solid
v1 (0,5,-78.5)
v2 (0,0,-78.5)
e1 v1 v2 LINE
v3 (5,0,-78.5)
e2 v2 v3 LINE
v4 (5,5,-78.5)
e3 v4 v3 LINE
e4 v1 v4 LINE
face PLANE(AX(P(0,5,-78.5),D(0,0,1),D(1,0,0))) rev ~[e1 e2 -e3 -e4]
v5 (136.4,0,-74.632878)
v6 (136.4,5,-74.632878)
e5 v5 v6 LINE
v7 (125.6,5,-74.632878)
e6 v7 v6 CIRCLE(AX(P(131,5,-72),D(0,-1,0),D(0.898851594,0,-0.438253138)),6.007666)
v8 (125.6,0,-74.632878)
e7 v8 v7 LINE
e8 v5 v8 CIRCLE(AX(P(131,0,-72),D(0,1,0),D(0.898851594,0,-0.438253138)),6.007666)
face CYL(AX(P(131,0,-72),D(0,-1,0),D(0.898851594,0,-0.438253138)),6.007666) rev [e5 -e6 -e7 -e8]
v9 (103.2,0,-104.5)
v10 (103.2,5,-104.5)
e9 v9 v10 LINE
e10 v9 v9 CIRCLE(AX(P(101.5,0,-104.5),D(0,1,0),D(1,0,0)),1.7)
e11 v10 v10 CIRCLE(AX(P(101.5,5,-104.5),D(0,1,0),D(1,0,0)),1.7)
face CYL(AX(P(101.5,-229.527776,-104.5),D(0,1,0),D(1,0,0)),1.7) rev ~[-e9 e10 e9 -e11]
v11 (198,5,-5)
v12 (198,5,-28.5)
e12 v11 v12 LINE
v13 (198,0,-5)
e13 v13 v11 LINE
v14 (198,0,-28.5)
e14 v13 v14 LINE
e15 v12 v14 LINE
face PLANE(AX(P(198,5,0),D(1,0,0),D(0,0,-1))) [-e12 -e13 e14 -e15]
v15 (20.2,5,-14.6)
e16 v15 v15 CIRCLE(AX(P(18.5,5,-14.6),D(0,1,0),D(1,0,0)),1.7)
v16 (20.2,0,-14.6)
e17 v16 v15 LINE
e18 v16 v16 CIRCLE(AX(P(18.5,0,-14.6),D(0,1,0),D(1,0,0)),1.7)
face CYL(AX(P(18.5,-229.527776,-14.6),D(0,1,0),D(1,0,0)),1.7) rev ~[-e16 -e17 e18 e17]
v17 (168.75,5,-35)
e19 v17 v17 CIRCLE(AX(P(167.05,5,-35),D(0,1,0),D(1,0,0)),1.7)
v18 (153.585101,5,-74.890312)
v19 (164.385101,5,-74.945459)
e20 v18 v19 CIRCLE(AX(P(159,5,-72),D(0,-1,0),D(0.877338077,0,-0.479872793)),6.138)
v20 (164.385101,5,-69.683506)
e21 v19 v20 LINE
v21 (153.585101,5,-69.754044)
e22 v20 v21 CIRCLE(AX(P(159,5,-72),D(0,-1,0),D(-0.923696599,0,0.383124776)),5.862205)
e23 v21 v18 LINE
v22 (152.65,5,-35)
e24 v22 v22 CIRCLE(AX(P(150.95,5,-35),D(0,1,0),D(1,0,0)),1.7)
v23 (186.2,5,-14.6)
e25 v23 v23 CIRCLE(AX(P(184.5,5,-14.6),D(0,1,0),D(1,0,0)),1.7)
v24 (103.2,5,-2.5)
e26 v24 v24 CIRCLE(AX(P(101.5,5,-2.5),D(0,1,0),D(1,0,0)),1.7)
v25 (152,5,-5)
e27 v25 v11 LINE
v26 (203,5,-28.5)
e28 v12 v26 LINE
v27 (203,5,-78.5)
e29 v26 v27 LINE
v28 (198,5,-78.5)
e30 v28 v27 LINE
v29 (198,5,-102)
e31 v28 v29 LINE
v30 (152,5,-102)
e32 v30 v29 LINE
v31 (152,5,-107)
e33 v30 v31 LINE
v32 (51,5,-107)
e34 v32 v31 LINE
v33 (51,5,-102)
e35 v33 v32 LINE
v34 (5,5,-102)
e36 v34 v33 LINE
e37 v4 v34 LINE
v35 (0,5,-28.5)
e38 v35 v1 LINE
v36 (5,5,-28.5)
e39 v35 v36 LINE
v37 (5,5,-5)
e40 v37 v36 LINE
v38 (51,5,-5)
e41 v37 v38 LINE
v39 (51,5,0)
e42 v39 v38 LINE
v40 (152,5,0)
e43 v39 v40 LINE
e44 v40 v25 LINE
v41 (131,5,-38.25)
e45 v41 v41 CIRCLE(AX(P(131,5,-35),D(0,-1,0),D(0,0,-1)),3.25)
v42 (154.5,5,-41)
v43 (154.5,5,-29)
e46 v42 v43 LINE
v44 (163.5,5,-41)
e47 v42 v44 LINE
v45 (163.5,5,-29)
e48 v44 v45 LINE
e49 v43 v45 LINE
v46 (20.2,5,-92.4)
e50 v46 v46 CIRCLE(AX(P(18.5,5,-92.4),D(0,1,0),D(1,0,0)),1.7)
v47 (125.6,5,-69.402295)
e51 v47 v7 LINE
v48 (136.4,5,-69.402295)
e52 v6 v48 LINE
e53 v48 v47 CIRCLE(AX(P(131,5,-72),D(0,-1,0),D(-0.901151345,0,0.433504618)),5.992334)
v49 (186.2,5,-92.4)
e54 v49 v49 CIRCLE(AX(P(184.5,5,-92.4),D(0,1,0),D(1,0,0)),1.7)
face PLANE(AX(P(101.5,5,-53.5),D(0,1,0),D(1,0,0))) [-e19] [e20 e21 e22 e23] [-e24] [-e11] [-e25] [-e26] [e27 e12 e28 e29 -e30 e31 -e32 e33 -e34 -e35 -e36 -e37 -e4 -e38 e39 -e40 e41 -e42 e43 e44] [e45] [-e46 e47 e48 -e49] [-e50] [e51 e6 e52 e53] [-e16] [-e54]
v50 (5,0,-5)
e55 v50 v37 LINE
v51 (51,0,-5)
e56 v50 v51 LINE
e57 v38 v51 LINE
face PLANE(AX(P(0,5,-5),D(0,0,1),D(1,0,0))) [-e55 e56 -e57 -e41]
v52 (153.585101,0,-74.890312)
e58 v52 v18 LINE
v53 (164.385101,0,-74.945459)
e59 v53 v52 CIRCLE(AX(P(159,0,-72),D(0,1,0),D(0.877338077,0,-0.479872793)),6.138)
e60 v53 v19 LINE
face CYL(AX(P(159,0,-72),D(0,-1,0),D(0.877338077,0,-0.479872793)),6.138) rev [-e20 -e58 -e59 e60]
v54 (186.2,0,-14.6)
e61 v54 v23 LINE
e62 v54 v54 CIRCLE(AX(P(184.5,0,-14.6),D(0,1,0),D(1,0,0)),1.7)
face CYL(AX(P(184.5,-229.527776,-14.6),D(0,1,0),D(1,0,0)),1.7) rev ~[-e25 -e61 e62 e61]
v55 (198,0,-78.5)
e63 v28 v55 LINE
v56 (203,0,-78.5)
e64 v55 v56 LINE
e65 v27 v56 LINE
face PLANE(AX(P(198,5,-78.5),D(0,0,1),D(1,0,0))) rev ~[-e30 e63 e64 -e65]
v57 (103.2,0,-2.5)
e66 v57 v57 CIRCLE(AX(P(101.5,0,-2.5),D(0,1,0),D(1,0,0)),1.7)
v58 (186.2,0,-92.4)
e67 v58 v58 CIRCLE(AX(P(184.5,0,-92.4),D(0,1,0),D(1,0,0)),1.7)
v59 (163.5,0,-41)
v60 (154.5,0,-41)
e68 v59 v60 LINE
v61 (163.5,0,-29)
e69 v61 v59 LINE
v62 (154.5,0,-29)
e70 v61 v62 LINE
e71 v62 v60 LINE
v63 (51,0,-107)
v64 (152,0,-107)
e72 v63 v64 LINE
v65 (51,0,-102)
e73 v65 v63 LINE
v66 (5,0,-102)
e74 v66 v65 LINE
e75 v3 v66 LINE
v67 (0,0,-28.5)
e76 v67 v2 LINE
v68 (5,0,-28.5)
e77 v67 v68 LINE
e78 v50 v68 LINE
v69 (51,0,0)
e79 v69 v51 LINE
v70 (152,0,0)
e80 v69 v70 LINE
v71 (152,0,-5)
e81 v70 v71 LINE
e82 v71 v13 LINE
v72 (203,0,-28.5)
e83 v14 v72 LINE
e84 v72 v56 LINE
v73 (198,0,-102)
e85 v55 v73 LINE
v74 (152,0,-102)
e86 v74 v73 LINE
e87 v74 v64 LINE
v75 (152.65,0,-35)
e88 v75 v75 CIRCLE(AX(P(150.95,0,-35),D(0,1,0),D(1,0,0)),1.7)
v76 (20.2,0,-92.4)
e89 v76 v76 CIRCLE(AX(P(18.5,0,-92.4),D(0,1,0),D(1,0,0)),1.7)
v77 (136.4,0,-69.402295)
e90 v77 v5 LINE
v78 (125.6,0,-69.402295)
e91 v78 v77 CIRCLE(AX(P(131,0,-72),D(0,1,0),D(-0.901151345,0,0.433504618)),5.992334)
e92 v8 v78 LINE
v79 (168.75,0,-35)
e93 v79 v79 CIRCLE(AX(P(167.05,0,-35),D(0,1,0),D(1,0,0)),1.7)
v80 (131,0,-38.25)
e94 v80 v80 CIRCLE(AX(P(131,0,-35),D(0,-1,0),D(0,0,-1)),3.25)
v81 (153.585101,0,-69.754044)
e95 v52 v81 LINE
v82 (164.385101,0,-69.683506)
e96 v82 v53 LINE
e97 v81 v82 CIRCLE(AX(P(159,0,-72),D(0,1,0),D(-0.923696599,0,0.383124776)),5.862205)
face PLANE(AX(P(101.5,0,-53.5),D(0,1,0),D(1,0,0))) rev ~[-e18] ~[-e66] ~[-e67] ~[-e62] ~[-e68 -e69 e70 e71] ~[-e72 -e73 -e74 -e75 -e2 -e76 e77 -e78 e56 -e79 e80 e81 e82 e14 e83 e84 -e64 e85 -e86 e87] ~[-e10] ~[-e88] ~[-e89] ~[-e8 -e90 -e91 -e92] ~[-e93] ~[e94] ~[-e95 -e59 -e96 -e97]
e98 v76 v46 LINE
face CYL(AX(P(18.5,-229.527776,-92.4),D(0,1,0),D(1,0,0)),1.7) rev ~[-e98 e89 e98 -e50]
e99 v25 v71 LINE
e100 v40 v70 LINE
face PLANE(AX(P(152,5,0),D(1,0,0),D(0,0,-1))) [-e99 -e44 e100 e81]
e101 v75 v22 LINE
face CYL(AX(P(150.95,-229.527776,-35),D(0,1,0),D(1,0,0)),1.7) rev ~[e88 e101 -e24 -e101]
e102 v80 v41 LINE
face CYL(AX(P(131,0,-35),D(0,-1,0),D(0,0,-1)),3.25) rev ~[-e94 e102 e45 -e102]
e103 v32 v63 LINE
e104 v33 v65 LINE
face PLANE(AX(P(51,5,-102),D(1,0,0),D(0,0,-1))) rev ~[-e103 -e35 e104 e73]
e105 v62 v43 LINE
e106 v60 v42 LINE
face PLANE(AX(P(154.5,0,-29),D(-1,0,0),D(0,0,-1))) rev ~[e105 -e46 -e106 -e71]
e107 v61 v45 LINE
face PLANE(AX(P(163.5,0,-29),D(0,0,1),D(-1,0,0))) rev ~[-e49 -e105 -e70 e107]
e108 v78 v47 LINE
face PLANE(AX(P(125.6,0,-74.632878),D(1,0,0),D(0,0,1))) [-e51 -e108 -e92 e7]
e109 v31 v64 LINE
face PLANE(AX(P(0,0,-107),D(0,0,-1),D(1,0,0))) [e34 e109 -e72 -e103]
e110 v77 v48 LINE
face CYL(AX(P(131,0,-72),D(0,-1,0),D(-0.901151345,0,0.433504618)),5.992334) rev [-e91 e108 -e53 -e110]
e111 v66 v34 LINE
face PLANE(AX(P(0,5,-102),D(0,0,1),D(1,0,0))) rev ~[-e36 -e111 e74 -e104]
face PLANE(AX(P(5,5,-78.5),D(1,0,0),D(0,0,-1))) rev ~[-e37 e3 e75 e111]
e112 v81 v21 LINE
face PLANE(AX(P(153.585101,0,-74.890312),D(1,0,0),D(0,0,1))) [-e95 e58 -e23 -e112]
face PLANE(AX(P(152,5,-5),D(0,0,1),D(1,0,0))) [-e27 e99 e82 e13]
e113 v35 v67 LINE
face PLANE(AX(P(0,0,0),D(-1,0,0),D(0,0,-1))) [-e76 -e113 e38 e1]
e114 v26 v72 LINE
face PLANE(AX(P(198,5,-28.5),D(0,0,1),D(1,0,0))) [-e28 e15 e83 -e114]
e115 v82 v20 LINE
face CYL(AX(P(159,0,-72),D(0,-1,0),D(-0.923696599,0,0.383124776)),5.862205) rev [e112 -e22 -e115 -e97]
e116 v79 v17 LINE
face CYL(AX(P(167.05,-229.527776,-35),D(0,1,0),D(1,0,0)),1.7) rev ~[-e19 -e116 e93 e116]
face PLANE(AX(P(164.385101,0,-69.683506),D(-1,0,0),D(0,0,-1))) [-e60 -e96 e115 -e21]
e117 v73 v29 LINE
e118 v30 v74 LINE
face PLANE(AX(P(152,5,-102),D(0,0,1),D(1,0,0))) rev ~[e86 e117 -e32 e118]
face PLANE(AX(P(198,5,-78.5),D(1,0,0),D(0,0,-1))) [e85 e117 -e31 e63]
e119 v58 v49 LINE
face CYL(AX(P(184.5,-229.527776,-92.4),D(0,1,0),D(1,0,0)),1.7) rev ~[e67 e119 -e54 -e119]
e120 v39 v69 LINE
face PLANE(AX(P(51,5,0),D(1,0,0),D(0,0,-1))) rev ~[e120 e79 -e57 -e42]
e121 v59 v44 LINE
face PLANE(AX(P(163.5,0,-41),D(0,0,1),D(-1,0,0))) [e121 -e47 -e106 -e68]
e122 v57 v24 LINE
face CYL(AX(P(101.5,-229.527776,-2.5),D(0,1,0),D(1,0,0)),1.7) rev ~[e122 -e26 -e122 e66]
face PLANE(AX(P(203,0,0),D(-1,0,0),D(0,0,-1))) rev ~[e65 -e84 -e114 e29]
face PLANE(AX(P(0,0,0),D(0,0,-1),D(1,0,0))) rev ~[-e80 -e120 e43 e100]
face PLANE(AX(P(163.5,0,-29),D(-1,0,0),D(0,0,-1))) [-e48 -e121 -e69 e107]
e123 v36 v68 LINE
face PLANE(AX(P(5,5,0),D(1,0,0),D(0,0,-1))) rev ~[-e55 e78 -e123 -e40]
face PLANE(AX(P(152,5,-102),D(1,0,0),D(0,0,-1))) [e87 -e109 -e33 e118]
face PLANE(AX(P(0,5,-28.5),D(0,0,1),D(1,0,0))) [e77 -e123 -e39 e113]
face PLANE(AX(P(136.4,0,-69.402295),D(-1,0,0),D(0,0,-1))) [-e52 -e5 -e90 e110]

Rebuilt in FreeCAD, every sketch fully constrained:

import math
import FreeCAD as App
import Part
import Sketcher

V = App.Vector
Q = App.Units.Quantity


def add_polygon(sketch, points):
    """Adds a closed chain of lines whose ends are joined by coincident constraints."""
    first, n = sketch.GeometryCount, len(points)
    for a, b in zip(points, points[1:] + points[:1]):
        sketch.addGeometry(Part.LineSegment(App.Vector(*a, 0), App.Vector(*b, 0)), False)
    for i in range(n):
        sketch.addConstraint(Sketcher.Constraint("Coincident", first + i, 2, first + (i + 1) % n, 1))

doc = App.newDocument("Part")
body = doc.addObject("PartDesign::Body", "Body")

# Sketch on XZ plane
sketch1 = body.newObject("Sketcher::SketchObject", "Sketch")
sketch1.AttachmentSupport = (doc.getObject("XZ_Plane"), [""])
sketch1.MapMode = "FlatFace"
add_polygon(sketch1, [(0, -107), (0, 0), (203, 0), (203, -107)])  # lines 0-3
sketch1.addConstraint([
    Sketcher.Constraint("Vertical", 0),
    Sketcher.Constraint("Horizontal", 1),
    Sketcher.Constraint("Vertical", 2),
    Sketcher.Constraint("Horizontal", 3),
    Sketcher.Constraint("Coincident", 0, 2, -1, 1),
    Sketcher.Constraint("DistanceX", 1, 1, 1, 2, Q("203 mm")),
    Sketcher.Constraint("DistanceY", 0, 1, 0, 2, Q("107 mm")),
])
pad1 = body.newObject("PartDesign::Pad", "Pad")
pad1.Profile = sketch1
pad1.Length = 5
pad1.Reversed = True

# Sketch on XZ plane
sketch2 = body.newObject("Sketcher::SketchObject", "Sketch001")
sketch2.AttachmentSupport = (doc.getObject("XZ_Plane"), [""])
sketch2.MapMode = "FlatFace"
sketch2.AttachmentOffset = App.Placement(V(0, 0, -5), App.Rotation())
add_polygon(sketch2, [(0, -107), (0, -102), (51, -102), (51, -107)])  # lines 0-3
add_polygon(sketch2, [(152, -107), (152, -102), (203, -102), (203, -107)])  # lines 4-7
add_polygon(sketch2, [(0, -5), (0, 0), (51, 0), (51, -5)])  # lines 8-11
add_polygon(sketch2, [(152, -5), (152, 0), (203, 0), (203, -5)])  # lines 12-15
sketch2.addConstraint([
    Sketcher.Constraint("Vertical", 0),
    Sketcher.Constraint("Horizontal", 1),
    Sketcher.Constraint("Vertical", 2),
    Sketcher.Constraint("Horizontal", 3),
    Sketcher.Constraint("Vertical", 4),
    Sketcher.Constraint("Horizontal", 5),
    Sketcher.Constraint("Vertical", 6),
    Sketcher.Constraint("Horizontal", 7),
    Sketcher.Constraint("Vertical", 8),
    Sketcher.Constraint("Horizontal", 9),
    Sketcher.Constraint("Vertical", 10),
    Sketcher.Constraint("Horizontal", 11),
    Sketcher.Constraint("Vertical", 12),
    Sketcher.Constraint("Horizontal", 13),
    Sketcher.Constraint("Vertical", 14),
    Sketcher.Constraint("Horizontal", 15),
    Sketcher.Constraint("Coincident", 8, 2, -1, 1),
    Sketcher.Constraint("PointOnObject", 0, 2, -2),
    Sketcher.Constraint("PointOnObject", 12, 2, -1),
    Sketcher.Constraint("Horizontal", 1, 2, 4, 2),
    Sketcher.Constraint("Horizontal", 3, 2, 6, 2),
    Sketcher.Constraint("Horizontal", 11, 2, 14, 2),
    Sketcher.Constraint("Vertical", 2, 2, 9, 2),
    Sketcher.Constraint("Vertical", 7, 2, 12, 2),
    Sketcher.Constraint("Vertical", 6, 2, 13, 2),
    Sketcher.Constraint("Equal", 3, 5),
    Sketcher.Constraint("Equal", 6, 8),
    Sketcher.Constraint("DistanceX", 1, 1, 1, 2, Q("51 mm")),
    Sketcher.Constraint("DistanceY", 0, 1, 0, 2, Q("5 mm")),
    Sketcher.Constraint("DistanceY", 0, 2, -1, 1, Q("102 mm")),
    Sketcher.Constraint("DistanceX", -1, 1, 4, 2, Q("152 mm")),
])
pocket1 = body.newObject("PartDesign::Pocket", "Pocket")
pocket1.Profile = sketch2
pocket1.Type = "ThroughAll"
pocket1.Reversed = True

# Sketch on XZ plane
sketch3 = body.newObject("Sketcher::SketchObject", "Sketch002")
sketch3.AttachmentSupport = (doc.getObject("XZ_Plane"), [""])
sketch3.MapMode = "FlatFace"
sketch3.AttachmentOffset = App.Placement(V(0, 0, -5), App.Rotation())
add_polygon(sketch3, [(0, -107), (0, -78), (5, -78), (5, -107)])  # lines 0-3
add_polygon(sketch3, [(0, -28), (0, 0), (5, 0), (5, -28)])  # lines 4-7
add_polygon(sketch3, [(198, -28), (198, 0), (203, 0), (203, -28)])  # lines 8-11
add_polygon(sketch3, [(198, -107), (198, -78), (203, -78), (203, -107)])  # lines 12-15
sketch3.addConstraint([
    Sketcher.Constraint("Vertical", 0),
    Sketcher.Constraint("Horizontal", 1),
    Sketcher.Constraint("Vertical", 2),
    Sketcher.Constraint("Horizontal", 3),
    Sketcher.Constraint("Vertical", 4),
    Sketcher.Constraint("Horizontal", 5),
    Sketcher.Constraint("Vertical", 6),
    Sketcher.Constraint("Horizontal", 7),
    Sketcher.Constraint("Vertical", 8),
    Sketcher.Constraint("Horizontal", 9),
    Sketcher.Constraint("Vertical", 10),
    Sketcher.Constraint("Horizontal", 11),
    Sketcher.Constraint("Vertical", 12),
    Sketcher.Constraint("Horizontal", 13),
    Sketcher.Constraint("Vertical", 14),
    Sketcher.Constraint("Horizontal", 15),
    Sketcher.Constraint("Coincident", 4, 2, -1, 1),
    Sketcher.Constraint("PointOnObject", 0, 2, -2),
    Sketcher.Constraint("PointOnObject", 8, 2, -1),
    Sketcher.Constraint("Horizontal", 7, 2, 10, 2),
    Sketcher.Constraint("Horizontal", 1, 2, 12, 2),
    Sketcher.Constraint("Horizontal", 3, 2, 14, 2),
    Sketcher.Constraint("Vertical", 2, 2, 5, 2),
    Sketcher.Constraint("Vertical", 11, 2, 12, 2),
    Sketcher.Constraint("Vertical", 10, 2, 13, 2),
    Sketcher.Constraint("Equal", 7, 9),
    Sketcher.Constraint("Equal", 2, 4),
    Sketcher.Constraint("DistanceX", 1, 1, 1, 2, Q("5 mm")),
    Sketcher.Constraint("DistanceY", 0, 1, 0, 2, Q("28.5 mm")),
    Sketcher.Constraint("DistanceY", 2, 2, -1, 1, Q("107 mm")),
    Sketcher.Constraint("DistanceX", -1, 1, 8, 2, Q("198 mm")),
])
pocket2 = body.newObject("PartDesign::Pocket", "Pocket001")
pocket2.Profile = sketch3
pocket2.Type = "ThroughAll"
pocket2.Reversed = True

# Sketch on XZ plane
sketch4 = body.newObject("Sketcher::SketchObject", "Sketch003")
sketch4.AttachmentSupport = (doc.getObject("XZ_Plane"), [""])
sketch4.MapMode = "FlatFace"
sketch4.addGeometry([
    Part.LineSegment(V(164, -75, 0), V(164, -70, 0)),  # 0
    Part.ArcOfCircle(Part.Circle(V(159, -72, 0), V(0, 0, 1), 6), math.radians(23), math.radians(157)),  # 1
    Part.LineSegment(V(154, -70, 0), V(154, -75, 0)),  # 2
    Part.ArcOfCircle(Part.Circle(V(159, -72, 0), V(0, 0, 1), 6), math.radians(-152), math.radians(-29)),  # 3
    Part.LineSegment(V(136, -75, 0), V(136, -69, 0)),  # 4
    Part.ArcOfCircle(Part.Circle(V(131, -72, 0), V(0, 0, 1), 6), math.radians(26), math.radians(154)),  # 5
    Part.LineSegment(V(126, -69, 0), V(126, -75, 0)),  # 6
    Part.ArcOfCircle(Part.Circle(V(131, -72, 0), V(0, 0, 1), 6), math.radians(-154), math.radians(-26)),  # 7
], False)
sketch4.addConstraint([
    Sketcher.Constraint("Coincident", 0, 2, 1, 1),
    Sketcher.Constraint("Coincident", 1, 2, 2, 1),
    Sketcher.Constraint("Coincident", 2, 2, 3, 1),
    Sketcher.Constraint("Coincident", 3, 2, 0, 1),
    Sketcher.Constraint("Coincident", 4, 2, 5, 1),
    Sketcher.Constraint("Coincident", 5, 2, 6, 1),
    Sketcher.Constraint("Coincident", 6, 2, 7, 1),
    Sketcher.Constraint("Coincident", 7, 2, 4, 1),
    Sketcher.Constraint("Vertical", 0),
    Sketcher.Constraint("Vertical", 2),
    Sketcher.Constraint("Vertical", 4),
    Sketcher.Constraint("Vertical", 6),
    Sketcher.Constraint("Coincident", 3, 3, 1, 3),
    Sketcher.Constraint("Coincident", 7, 3, 5, 3),
    Sketcher.Constraint("Horizontal", 3, 3, 5, 3),
    Sketcher.Constraint("Horizontal", 4, 2, 5, 2),
    Sketcher.Constraint("DistanceX", -1, 1, 1, 3, Q("159 mm")),
    Sketcher.Constraint("DistanceY", 1, 3, -1, 1, Q("72 mm")),
    Sketcher.Constraint("DistanceX", -1, 1, 5, 3, Q("131 mm")),
    Sketcher.Constraint("Radius", 3, Q("6.138 mm")),
    Sketcher.Constraint("DistanceX", -1, 1, 4, 2, Q("136.4 mm")),
    Sketcher.Constraint("DistanceX", 1, 2, 0, 2, Q("10.8 mm")),
    Sketcher.Constraint("Radius", 1, Q("5.862205 mm")),
    Sketcher.Constraint("Radius", 5, Q("5.992334 mm")),
    Sketcher.Constraint("Radius", 7, Q("6.007666 mm")),
    Sketcher.Constraint("DistanceY", 2, 2, 2, 1, Q("5.136268 mm")),
])
pocket3 = body.newObject("PartDesign::Pocket", "Pocket002")
pocket3.Profile = sketch4
pocket3.Type = "ThroughAll"

# Sketch on XZ plane
sketch5 = body.newObject("Sketcher::SketchObject", "Sketch004")
sketch5.AttachmentSupport = (doc.getObject("XZ_Plane"), [""])
sketch5.MapMode = "FlatFace"
sketch5.addGeometry(Part.Circle(V(131, -35, 0), V(0, 0, 1), 3.2), False)
sketch5.addConstraint([
    Sketcher.Constraint("Diameter", 0, Q("6.5 mm")),
    Sketcher.Constraint("DistanceX", -1, 1, 0, 3, Q("131 mm")),
    Sketcher.Constraint("DistanceY", 0, 3, -1, 1, Q("35 mm")),
])
pocket4 = body.newObject("PartDesign::Pocket", "Pocket003")
pocket4.Profile = sketch5
pocket4.Type = "ThroughAll"

# Sketch on XZ plane
sketch6 = body.newObject("Sketcher::SketchObject", "Sketch005")
sketch6.AttachmentSupport = (doc.getObject("XZ_Plane"), [""])
sketch6.MapMode = "FlatFace"
sketch6.addGeometry([
    Part.Circle(V(18.5, -14.6, 0), V(0, 0, 1), 1.7),
    Part.Circle(V(184.5, -14.6, 0), V(0, 0, 1), 1.7),
    Part.Circle(V(184.5, -92.4, 0), V(0, 0, 1), 1.7),
    Part.Circle(V(18.5, -92.4, 0), V(0, 0, 1), 1.7),
], False)
sketch6.addConstraint([
    Sketcher.Constraint("Equal", 0, 1),
    Sketcher.Constraint("Equal", 1, 2),
    Sketcher.Constraint("Equal", 2, 3),
    Sketcher.Constraint("Horizontal", 0, 3, 1, 3),
    Sketcher.Constraint("Horizontal", 2, 3, 3, 3),
    Sketcher.Constraint("Vertical", 1, 3, 2, 3),
    Sketcher.Constraint("Vertical", 0, 3, 3, 3),
    Sketcher.Constraint("Diameter", 0, Q("3.4 mm")),
    Sketcher.Constraint("DistanceX", 0, 3, 1, 3, Q("166 mm")),
    Sketcher.Constraint("DistanceX", -1, 1, 0, 3, Q("18.5 mm")),
    Sketcher.Constraint("DistanceY", 0, 3, -1, 1, Q("14.6 mm")),
    Sketcher.Constraint("DistanceY", 2, 3, -1, 1, Q("92.4 mm")),
])
doc.recompute()
hole = body.newObject("PartDesign::Hole", "Hole")
hole.Profile = sketch6
hole.ThreadType = "None"
hole.Diameter = 3.4
hole.DepthType = "ThroughAll"

# Sketch on XZ plane
sketch7 = body.newObject("Sketcher::SketchObject", "Sketch006")
sketch7.AttachmentSupport = (doc.getObject("XZ_Plane"), [""])
sketch7.MapMode = "FlatFace"
add_polygon(sketch7, [(164, -41), (164, -29), (154, -29), (154, -41)])  # lines 0-3
sketch7.addConstraint([
    Sketcher.Constraint("Vertical", 0),
    Sketcher.Constraint("Horizontal", 1),
    Sketcher.Constraint("Vertical", 2),
    Sketcher.Constraint("Horizontal", 3),
    Sketcher.Constraint("DistanceX", 1, 2, 1, 1, Q("9 mm")),
    Sketcher.Constraint("DistanceY", 0, 1, 0, 2, Q("12 mm")),
    Sketcher.Constraint("DistanceY", 0, 2, -1, 1, Q("29 mm")),
    Sketcher.Constraint("DistanceX", -1, 1, 0, 2, Q("163.5 mm")),
])
pocket5 = body.newObject("PartDesign::Pocket", "Pocket004")
pocket5.Profile = sketch7
pocket5.Type = "ThroughAll"

# Sketch on XZ plane
sketch8 = body.newObject("Sketcher::SketchObject", "Sketch007")
sketch8.AttachmentSupport = (doc.getObject("XZ_Plane"), [""])
sketch8.MapMode = "FlatFace"
sketch8.addGeometry([
    Part.Circle(V(150.9, -35, 0), V(0, 0, 1), 1.7),
    Part.Circle(V(167.1, -35, 0), V(0, 0, 1), 1.7),
], False)
sketch8.addConstraint([
    Sketcher.Constraint("Equal", 0, 1),
    Sketcher.Constraint("Horizontal", 0, 3, 1, 3),
    Sketcher.Constraint("Diameter", 0, Q("3.4 mm")),
    Sketcher.Constraint("DistanceY", 0, 3, -1, 1, Q("35 mm")),
    Sketcher.Constraint("DistanceX", 0, 3, 1, 3, Q("16.1 mm")),
    Sketcher.Constraint("DistanceX", -1, 1, 0, 3, Q("150.95 mm")),
])
doc.recompute()
hole2 = body.newObject("PartDesign::Hole", "Hole001")
hole2.Profile = sketch8
hole2.ThreadType = "None"
hole2.Diameter = 3.4
hole2.DepthType = "ThroughAll"

# Sketch on XZ plane
sketch9 = body.newObject("Sketcher::SketchObject", "Sketch008")
sketch9.AttachmentSupport = (doc.getObject("XZ_Plane"), [""])
sketch9.MapMode = "FlatFace"
sketch9.addGeometry([
    Part.Circle(V(101.5, -104.5, 0), V(0, 0, 1), 1.7),
    Part.Circle(V(101.5, -2.5, 0), V(0, 0, 1), 1.7),
], False)
sketch9.addConstraint([
    Sketcher.Constraint("Equal", 0, 1),
    Sketcher.Constraint("Vertical", 0, 3, 1, 3),
    Sketcher.Constraint("Diameter", 0, Q("3.4 mm")),
    Sketcher.Constraint("DistanceY", 0, 3, 1, 3, Q("102 mm")),
    Sketcher.Constraint("DistanceX", -1, 1, 0, 3, Q("101.5 mm")),
    Sketcher.Constraint("DistanceY", 0, 3, -1, 1, Q("104.5 mm")),
])
doc.recompute()
hole3 = body.newObject("PartDesign::Hole", "Hole002")
hole3.Profile = sketch9
hole3.ThreadType = "None"
hole3.Diameter = 3.4
hole3.DepthType = "ThroughAll"

doc.recompute()
